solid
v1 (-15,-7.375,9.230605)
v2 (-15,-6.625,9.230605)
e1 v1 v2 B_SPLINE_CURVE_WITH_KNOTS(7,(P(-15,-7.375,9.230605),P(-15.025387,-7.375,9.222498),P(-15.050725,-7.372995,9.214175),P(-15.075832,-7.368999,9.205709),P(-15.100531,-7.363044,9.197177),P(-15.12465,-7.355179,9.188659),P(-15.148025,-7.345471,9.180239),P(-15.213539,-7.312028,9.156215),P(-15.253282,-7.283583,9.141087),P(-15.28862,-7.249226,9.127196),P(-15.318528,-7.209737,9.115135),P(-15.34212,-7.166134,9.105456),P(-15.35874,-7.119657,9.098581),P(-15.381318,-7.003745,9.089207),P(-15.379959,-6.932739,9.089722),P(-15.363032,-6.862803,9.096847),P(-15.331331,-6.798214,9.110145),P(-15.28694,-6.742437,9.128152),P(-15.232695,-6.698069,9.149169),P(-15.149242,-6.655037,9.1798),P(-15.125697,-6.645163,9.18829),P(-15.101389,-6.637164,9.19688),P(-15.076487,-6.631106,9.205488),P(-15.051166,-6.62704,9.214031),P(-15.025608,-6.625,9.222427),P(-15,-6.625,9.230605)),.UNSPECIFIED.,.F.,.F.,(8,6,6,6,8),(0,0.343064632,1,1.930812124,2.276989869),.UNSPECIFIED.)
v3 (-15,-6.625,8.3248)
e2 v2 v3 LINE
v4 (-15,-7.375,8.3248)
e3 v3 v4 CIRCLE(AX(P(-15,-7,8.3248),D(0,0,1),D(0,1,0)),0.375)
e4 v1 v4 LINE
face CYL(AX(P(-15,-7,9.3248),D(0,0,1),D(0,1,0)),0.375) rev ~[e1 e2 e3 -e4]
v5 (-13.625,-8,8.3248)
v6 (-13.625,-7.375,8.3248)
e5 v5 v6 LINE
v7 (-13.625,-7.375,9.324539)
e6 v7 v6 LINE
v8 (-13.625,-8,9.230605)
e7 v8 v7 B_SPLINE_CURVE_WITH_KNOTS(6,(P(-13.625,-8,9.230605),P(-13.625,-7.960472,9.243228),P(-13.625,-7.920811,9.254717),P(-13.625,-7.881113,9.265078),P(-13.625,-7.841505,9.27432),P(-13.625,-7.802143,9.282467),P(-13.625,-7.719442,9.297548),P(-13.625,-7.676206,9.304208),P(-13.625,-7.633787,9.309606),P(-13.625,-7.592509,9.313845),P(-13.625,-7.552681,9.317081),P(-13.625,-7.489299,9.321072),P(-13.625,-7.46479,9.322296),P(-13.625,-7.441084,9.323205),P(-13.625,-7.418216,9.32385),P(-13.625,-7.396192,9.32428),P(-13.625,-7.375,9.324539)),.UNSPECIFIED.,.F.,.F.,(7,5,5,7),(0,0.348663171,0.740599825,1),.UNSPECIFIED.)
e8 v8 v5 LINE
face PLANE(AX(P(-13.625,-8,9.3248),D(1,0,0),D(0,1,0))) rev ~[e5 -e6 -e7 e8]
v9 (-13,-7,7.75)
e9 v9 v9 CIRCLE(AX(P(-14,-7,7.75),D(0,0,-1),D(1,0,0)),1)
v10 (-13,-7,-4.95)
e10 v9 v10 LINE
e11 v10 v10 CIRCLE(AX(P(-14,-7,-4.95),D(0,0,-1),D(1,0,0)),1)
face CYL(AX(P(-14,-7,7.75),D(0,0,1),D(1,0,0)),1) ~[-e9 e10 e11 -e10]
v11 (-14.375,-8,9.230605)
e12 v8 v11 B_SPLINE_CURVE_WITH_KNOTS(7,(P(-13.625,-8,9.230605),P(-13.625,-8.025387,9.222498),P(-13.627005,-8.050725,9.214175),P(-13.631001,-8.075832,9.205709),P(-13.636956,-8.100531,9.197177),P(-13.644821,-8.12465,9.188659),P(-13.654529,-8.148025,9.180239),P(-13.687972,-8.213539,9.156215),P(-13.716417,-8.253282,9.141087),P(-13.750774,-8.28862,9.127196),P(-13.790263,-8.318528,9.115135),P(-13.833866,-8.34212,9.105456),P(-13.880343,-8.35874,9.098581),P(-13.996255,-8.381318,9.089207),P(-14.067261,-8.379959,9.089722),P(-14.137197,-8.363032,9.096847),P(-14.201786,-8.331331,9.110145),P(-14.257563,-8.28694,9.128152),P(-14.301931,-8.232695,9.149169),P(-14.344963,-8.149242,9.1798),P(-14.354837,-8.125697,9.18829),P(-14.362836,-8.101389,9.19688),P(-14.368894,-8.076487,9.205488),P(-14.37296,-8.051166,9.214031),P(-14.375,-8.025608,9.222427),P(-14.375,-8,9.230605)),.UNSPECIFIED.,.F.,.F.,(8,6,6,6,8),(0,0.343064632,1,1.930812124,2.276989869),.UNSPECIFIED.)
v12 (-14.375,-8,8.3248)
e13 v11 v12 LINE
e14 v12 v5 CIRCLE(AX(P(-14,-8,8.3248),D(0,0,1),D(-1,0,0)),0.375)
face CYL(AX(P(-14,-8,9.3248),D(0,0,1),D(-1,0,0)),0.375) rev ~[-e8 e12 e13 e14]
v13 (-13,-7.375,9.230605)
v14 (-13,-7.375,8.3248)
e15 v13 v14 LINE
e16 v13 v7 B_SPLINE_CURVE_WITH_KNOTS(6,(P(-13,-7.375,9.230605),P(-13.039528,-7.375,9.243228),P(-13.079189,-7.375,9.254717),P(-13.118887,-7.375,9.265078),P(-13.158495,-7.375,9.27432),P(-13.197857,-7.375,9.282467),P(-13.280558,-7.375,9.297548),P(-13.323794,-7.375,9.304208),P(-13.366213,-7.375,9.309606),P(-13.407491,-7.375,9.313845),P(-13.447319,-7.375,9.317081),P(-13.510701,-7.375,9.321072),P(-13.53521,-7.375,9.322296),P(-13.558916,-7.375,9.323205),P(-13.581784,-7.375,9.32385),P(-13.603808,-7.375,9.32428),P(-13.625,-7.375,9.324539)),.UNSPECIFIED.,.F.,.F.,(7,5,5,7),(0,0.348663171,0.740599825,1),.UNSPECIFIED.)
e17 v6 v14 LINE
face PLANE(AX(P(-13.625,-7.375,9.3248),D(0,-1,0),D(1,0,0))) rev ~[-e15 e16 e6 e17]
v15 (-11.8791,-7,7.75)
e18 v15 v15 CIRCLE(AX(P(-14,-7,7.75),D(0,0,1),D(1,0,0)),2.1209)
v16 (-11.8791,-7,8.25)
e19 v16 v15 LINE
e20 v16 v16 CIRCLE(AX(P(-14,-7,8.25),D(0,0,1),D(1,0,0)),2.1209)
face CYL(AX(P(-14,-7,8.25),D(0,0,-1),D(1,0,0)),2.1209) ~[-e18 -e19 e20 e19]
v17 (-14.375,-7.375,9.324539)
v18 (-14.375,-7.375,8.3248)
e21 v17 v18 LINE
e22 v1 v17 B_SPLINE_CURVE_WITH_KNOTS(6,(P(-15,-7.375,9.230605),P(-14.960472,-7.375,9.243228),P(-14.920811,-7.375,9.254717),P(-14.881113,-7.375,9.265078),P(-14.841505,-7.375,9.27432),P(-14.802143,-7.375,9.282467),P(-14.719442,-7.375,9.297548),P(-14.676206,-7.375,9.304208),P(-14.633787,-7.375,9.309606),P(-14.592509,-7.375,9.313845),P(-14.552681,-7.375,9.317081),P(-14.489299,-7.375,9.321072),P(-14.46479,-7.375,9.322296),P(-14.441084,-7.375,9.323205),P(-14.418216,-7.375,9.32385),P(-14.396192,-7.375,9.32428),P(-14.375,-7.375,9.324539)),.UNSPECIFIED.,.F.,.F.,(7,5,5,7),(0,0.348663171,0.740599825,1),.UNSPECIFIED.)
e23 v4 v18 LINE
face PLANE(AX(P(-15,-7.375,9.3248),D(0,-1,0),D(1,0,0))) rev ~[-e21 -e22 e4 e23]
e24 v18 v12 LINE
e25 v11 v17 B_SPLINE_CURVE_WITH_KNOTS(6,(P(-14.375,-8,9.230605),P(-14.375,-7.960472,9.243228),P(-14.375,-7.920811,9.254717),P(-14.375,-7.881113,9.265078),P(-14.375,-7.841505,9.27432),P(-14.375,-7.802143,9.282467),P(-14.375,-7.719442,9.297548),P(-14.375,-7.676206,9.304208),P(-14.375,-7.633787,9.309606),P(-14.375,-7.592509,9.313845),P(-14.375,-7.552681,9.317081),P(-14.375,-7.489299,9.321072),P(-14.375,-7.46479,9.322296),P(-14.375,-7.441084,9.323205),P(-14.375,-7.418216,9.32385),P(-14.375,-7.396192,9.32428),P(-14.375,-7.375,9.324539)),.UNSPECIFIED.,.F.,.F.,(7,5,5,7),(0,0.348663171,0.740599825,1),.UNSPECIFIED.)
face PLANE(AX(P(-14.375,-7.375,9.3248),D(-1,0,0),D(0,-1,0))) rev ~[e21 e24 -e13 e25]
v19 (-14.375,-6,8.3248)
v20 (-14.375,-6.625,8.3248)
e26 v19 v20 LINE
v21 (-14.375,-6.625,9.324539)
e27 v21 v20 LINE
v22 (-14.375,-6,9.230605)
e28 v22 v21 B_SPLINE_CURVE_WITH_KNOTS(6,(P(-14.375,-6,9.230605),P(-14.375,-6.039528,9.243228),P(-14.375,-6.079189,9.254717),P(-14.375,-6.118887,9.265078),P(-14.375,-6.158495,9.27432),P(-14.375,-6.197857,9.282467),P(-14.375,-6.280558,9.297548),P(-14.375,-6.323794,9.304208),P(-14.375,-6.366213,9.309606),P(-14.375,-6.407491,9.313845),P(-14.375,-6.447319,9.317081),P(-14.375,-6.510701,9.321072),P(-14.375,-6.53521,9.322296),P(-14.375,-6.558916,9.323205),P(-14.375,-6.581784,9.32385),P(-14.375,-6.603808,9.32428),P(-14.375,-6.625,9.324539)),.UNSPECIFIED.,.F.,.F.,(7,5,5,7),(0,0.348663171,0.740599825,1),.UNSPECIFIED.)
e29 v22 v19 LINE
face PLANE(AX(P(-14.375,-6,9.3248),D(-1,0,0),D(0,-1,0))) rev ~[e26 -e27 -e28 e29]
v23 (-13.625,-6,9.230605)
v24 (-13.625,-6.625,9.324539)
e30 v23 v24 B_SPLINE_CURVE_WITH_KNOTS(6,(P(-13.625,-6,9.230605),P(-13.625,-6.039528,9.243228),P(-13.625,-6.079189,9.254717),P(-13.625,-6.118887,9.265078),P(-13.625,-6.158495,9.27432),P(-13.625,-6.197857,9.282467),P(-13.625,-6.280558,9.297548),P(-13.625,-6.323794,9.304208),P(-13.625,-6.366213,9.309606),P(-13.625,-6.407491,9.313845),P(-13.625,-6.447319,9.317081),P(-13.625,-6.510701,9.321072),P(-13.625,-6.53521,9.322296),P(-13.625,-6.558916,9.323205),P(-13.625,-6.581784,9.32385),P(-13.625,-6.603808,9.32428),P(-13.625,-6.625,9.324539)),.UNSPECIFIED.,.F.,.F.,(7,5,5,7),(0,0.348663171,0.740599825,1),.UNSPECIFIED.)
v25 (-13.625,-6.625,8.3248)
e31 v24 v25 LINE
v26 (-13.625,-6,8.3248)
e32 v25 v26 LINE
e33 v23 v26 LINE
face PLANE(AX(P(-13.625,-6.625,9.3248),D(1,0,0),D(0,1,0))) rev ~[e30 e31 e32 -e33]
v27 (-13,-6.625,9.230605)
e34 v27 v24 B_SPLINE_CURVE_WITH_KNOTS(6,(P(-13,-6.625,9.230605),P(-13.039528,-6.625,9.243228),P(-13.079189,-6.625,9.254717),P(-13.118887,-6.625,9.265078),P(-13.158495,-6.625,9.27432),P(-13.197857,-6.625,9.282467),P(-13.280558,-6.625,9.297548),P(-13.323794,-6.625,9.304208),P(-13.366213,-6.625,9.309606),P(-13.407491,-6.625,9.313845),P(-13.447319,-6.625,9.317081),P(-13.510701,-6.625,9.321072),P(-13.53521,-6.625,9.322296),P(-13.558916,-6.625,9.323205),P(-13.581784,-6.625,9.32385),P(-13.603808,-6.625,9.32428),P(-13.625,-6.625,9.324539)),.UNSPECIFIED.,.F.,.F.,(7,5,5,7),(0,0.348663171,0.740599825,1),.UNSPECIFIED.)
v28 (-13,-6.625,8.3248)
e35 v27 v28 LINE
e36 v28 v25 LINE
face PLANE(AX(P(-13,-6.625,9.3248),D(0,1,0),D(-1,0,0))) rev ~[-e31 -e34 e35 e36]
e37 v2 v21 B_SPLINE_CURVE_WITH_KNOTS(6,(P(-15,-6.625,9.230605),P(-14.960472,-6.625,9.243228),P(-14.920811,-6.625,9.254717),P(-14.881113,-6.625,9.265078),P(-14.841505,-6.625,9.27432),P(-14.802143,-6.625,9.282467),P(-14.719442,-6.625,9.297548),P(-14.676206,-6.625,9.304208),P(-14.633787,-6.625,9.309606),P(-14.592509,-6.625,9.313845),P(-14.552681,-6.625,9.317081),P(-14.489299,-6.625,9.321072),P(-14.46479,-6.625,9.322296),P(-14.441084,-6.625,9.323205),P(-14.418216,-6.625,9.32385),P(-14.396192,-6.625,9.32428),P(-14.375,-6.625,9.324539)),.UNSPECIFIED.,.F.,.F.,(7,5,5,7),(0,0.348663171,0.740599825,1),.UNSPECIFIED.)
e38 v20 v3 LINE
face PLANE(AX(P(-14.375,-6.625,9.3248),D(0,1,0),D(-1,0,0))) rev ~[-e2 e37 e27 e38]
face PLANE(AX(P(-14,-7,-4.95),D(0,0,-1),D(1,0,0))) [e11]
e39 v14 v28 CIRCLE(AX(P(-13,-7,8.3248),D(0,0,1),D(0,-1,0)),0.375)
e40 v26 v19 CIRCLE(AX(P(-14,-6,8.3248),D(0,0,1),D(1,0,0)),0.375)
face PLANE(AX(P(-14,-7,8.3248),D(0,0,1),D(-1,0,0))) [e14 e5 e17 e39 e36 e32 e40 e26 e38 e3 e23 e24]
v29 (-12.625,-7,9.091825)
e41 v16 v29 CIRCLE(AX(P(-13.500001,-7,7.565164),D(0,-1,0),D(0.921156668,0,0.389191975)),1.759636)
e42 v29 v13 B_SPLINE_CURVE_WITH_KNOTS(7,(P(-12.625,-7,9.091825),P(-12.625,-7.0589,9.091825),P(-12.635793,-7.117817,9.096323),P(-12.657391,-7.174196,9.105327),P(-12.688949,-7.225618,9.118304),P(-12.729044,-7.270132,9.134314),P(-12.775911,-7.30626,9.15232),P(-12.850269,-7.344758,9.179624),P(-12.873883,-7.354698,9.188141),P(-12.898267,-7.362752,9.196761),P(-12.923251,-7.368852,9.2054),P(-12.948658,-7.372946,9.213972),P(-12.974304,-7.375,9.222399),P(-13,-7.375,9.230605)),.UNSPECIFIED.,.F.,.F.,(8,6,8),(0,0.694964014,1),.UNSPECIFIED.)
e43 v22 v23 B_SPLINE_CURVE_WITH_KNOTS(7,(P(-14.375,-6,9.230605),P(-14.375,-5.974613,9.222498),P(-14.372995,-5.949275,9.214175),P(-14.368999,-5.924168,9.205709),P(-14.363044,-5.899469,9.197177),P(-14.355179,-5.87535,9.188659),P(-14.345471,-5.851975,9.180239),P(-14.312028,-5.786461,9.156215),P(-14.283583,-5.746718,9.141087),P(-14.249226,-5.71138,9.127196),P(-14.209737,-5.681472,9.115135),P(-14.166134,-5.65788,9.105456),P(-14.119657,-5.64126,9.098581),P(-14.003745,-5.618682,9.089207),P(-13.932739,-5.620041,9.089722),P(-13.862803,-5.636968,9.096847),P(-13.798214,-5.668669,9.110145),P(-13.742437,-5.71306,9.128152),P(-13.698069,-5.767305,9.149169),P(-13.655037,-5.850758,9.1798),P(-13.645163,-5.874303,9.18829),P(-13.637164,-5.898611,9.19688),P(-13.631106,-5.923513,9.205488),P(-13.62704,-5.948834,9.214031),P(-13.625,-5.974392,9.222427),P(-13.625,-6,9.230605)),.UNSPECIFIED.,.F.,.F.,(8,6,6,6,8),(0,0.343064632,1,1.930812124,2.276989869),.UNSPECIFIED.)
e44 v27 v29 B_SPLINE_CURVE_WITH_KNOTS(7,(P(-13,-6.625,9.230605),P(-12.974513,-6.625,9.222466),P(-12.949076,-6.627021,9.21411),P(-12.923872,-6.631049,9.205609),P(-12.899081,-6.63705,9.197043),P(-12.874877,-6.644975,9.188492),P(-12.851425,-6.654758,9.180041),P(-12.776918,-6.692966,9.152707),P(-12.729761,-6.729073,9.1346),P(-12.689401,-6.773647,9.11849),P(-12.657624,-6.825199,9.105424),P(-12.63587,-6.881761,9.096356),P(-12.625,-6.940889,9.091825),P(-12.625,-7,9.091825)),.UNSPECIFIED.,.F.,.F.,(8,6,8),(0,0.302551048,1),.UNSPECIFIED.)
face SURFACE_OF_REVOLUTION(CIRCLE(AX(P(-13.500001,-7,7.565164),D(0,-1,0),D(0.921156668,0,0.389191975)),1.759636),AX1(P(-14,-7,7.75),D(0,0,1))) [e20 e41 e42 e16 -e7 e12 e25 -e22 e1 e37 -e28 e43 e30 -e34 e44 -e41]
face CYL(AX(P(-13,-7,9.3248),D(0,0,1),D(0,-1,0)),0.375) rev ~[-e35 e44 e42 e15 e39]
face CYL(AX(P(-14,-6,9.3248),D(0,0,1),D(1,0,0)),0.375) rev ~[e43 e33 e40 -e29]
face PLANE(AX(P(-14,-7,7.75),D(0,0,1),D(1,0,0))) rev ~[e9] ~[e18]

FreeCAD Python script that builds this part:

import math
import FreeCAD as App
import Part
import Sketcher
from FreeCAD import Vector

doc = App.newDocument("Part")
body = doc.addObject("PartDesign::Body", "Body")

# Sketch on XZ plane
sketch1 = body.newObject("Sketcher::SketchObject", "Sketch")
sketch1.AttachmentSupport = (doc.getObject("XZ_Plane"), [""])
sketch1.MapMode = "FlatFace"
sketch1.addGeometry([
    Part.LineSegment(Vector(0, 1.6, 0), Vector(0, 0, 0)),  # 0
    Part.LineSegment(Vector(0, 0, 0), Vector(2.1, 0, 0)),  # 1
    Part.LineSegment(Vector(2.1, 0, 0), Vector(2.1, 0.5, 0)),  # 2
    Part.ArcOfCircle(Part.Circle(Vector(0.5, -0.2, 0), Vector(0, 0, 1), 1.8), math.radians(23), math.radians(90)),  # 3
    Part.LineSegment(Vector(0.5, 1.6, 0), Vector(0, 1.6, 0)),  # 4
], False)
sketch1.addConstraint([
    Sketcher.Constraint("Coincident", 0, 2, 1, 1),
    Sketcher.Constraint("Coincident", 1, 2, 2, 1),
    Sketcher.Constraint("Coincident", 2, 2, 3, 1),
    Sketcher.Constraint("Tangent", 3, 2, 4, 1),
    Sketcher.Constraint("Coincident", 4, 2, 0, 1),
    Sketcher.Constraint("Vertical", 0),
    Sketcher.Constraint("Horizontal", 1),
    Sketcher.Constraint("Vertical", 2),
    Sketcher.Constraint("Horizontal", 4),
    Sketcher.Constraint("Coincident", 0, 2, -1, 1),
    Sketcher.Constraint("Equal", 4, 2),
    Sketcher.Constraint("DistanceX", 4, 2, 4, 1, 0.5),
    Sketcher.Constraint("DistanceX", 1, 1, 1, 2, 2.1209),
    Sketcher.Constraint("DistanceY", 0, 2, 0, 1, 1.5748),
])
revolution = body.newObject("PartDesign::Revolution", "Revolution")
revolution.Profile = sketch1
revolution.ReferenceAxis = (sketch1, ["V_Axis"])
revolution.Angle = 360

# Sketch on XY plane
sketch2 = body.newObject("Sketcher::SketchObject", "Sketch001")
sketch2.AttachmentSupport = (doc.getObject("XY_Plane"), [""])
sketch2.MapMode = "FlatFace"
sketch2.AttachmentOffset = App.Placement(Vector(0, 0, 1.5748), App.Rotation())
sketch2.addGeometry([
    Part.ArcOfCircle(Part.Circle(Vector(0, -1, 0), Vector(0, 0, 1), 0.38), math.radians(180), math.radians(360)),  # 0
    Part.LineSegment(Vector(0.38, -1, 0), Vector(0.38, -0.38, 0)),  # 1
    Part.LineSegment(Vector(0.38, -0.38, 0), Vector(1, -0.38, 0)),  # 2
    Part.ArcOfCircle(Part.Circle(Vector(1, 0, 0), Vector(0, 0, 1), 0.38), math.radians(-90), math.radians(90)),  # 3
    Part.LineSegment(Vector(1, 0.38, 0), Vector(0.38, 0.38, 0)),  # 4
    Part.LineSegment(Vector(0.38, 0.38, 0), Vector(0.38, 1, 0)),  # 5
    Part.ArcOfCircle(Part.Circle(Vector(0, 1, 0), Vector(0, 0, 1), 0.38), math.radians(0), math.radians(180)),  # 6
    Part.LineSegment(Vector(-0.38, 1, 0), Vector(-0.38, 0.38, 0)),  # 7
    Part.LineSegment(Vector(-0.38, 0.38, 0), Vector(-1, 0.38, 0)),  # 8
    Part.ArcOfCircle(Part.Circle(Vector(-1, 0, 0), Vector(0, 0, 1), 0.38), math.radians(90), math.radians(270)),  # 9
    Part.LineSegment(Vector(-1, -0.38, 0), Vector(-0.38, -0.38, 0)),  # 10
    Part.LineSegment(Vector(-0.38, -0.38, 0), Vector(-0.38, -1, 0)),  # 11
], False)
sketch2.addConstraint([
    Sketcher.Constraint("Tangent", 0, 2, 1, 1),
    Sketcher.Constraint("Coincident", 1, 2, 2, 1),
    Sketcher.Constraint("Tangent", 2, 2, 3, 1),
    Sketcher.Constraint("Tangent", 3, 2, 4, 1),
    Sketcher.Constraint("Coincident", 4, 2, 5, 1),
    Sketcher.Constraint("Tangent", 5, 2, 6, 1),
    Sketcher.Constraint("Tangent", 6, 2, 7, 1),
    Sketcher.Constraint("Coincident", 7, 2, 8, 1),
    Sketcher.Constraint("Tangent", 8, 2, 9, 1),
    Sketcher.Constraint("Tangent", 9, 2, 10, 1),
    Sketcher.Constraint("Coincident", 10, 2, 11, 1),
    Sketcher.Constraint("Tangent", 11, 2, 0, 1),
    Sketcher.Constraint("Vertical", 1),
    Sketcher.Constraint("Horizontal", 2),
    Sketcher.Constraint("Horizontal", 4),
    Sketcher.Constraint("Vertical", 5),
    Sketcher.Constraint("Vertical", 7),
    Sketcher.Constraint("Horizontal", 8),
    Sketcher.Constraint("Horizontal", 10),
    Sketcher.Constraint("Vertical", 11),
    Sketcher.Constraint("Equal", 0, 3),
    Sketcher.Constraint("Equal", 3, 6),
    Sketcher.Constraint("Equal", 6, 9),
    Sketcher.Constraint("Symmetric", 0, 3, 6, 3, -1, 1),
    Sketcher.Constraint("Symmetric", 3, 3, 9, 3, -1, 1),
    Sketcher.Constraint("Symmetric", 4, 2, 7, 2, -2),
    Sketcher.Constraint("Equal", 10, 1),
    Sketcher.Constraint("DistanceY", 0, 3, -1, 1, 1.0),
    Sketcher.Constraint("Radius", 0, 0.375),
])
pocket1 = body.newObject("PartDesign::Pocket", "Pocket")
pocket1.Profile = sketch2
pocket1.Length = 1

# Sketch on XY plane
sketch3 = body.newObject("Sketcher::SketchObject", "Sketch002")
sketch3.AttachmentSupport = (doc.getObject("XY_Plane"), [""])
sketch3.MapMode = "FlatFace"
sketch3.addGeometry(Part.Circle(Vector(0, 0, 0), Vector(0, 0, 1), 1), False)
sketch3.addConstraint([
    Sketcher.Constraint("Coincident", 0, 3, -1, 1),
    Sketcher.Constraint("Diameter", 0, 2.0),
])
pad1 = body.newObject("PartDesign::Pad", "Pad")
pad1.Profile = sketch3
pad1.Length = 12.7
pad1.Reversed = True
body2 = doc.addObject("PartDesign::Body", "Body001")
doc.recompute()

body.Placement = App.Placement(Vector(-14, -7, 7.75), App.Rotation(Vector(0, 0, 1), 0))
boolean = body2.newObject("PartDesign::Boolean", "Boolean")
boolean.Type = "Fuse"
boolean.addObjects([body])

doc.recompute()
